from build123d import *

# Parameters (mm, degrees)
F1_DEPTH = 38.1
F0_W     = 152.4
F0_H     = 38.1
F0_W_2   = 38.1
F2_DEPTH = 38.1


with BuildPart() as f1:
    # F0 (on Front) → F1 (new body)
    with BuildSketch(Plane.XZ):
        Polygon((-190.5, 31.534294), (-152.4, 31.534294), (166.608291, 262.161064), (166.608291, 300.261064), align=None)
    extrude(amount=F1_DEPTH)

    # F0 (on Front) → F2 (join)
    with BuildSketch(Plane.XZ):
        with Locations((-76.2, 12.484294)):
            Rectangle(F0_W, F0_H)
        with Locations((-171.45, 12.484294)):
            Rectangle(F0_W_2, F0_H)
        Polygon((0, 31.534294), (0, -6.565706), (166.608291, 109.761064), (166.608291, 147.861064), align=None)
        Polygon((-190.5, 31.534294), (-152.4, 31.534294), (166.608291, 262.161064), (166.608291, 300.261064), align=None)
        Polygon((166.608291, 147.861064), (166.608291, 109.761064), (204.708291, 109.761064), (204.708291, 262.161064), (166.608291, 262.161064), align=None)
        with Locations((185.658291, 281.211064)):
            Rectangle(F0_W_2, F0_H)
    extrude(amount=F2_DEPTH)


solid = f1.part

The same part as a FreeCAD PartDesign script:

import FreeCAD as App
import Part
import Sketcher
Q = App.Units.Quantity

doc = App.newDocument("Part")
body = doc.addObject("PartDesign::Body", "Body")

# Sketch on XZ plane
sketch1 = body.newObject("Sketcher::SketchObject", "Sketch")
sketch1.AttachmentSupport = (doc.getObject("XZ_Plane"), [""])
sketch1.MapMode = "FlatFace"
sketch1.addGeometry(Part.LineSegment(App.Vector(-190, 32, 0), App.Vector(-152, 32, 0)), False)
sketch1.addGeometry(Part.LineSegment(App.Vector(-152, 32, 0), App.Vector(167, 262, 0)), False)
sketch1.addGeometry(Part.LineSegment(App.Vector(167, 262, 0), App.Vector(167, 300, 0)), False)
sketch1.addGeometry(Part.LineSegment(App.Vector(167, 300, 0), App.Vector(-190, 32, 0)), False)
sketch1.addConstraint(Sketcher.Constraint("Coincident", 0, 2, 1, 1))
sketch1.addConstraint(Sketcher.Constraint("Coincident", 1, 2, 2, 1))
sketch1.addConstraint(Sketcher.Constraint("Coincident", 2, 2, 3, 1))
sketch1.addConstraint(Sketcher.Constraint("Coincident", 3, 2, 0, 1))
sketch1.addConstraint(Sketcher.Constraint("Horizontal", 0))
sketch1.addConstraint(Sketcher.Constraint("Vertical", 2))
sketch1.addConstraint(Sketcher.Constraint("Equal", 0, 2))
sketch1.addConstraint(Sketcher.Constraint("DistanceX", 0, 1, 0, 2, Q("1.5 in")))
sketch1.addConstraint(Sketcher.Constraint("DistanceX", 0, 2, -1, 1, Q("6 in")))
sketch1.addConstraint(Sketcher.Constraint("Distance", 3, Q("446.923269 mm")))
sketch1.addConstraint(Sketcher.Constraint("DistanceX", -1, 1, 1, 2, Q("166.608291 mm")))
sketch1.addConstraint(Sketcher.Constraint("DistanceY", -1, 1, 0, 2, Q("31.534294 mm")))
pad1 = body.newObject("PartDesign::Pad", "Pad")
pad1.Profile = sketch1
pad1.Length = Q("1.5 in")

# Sketch on XZ plane
sketch2 = body.newObject("Sketcher::SketchObject", "Sketch001")
sketch2.AttachmentSupport = (doc.getObject("XZ_Plane"), [""])
sketch2.MapMode = "FlatFace"
sketch2.addGeometry(Part.LineSegment(App.Vector(205, 110, 0), App.Vector(205, 300, 0)), False)
sketch2.addGeometry(Part.LineSegment(App.Vector(205, 300, 0), App.Vector(167, 300, 0)), False)
sketch2.addGeometry(Part.LineSegment(App.Vector(167, 300, 0), App.Vector(-190, 32, 0)), False)
sketch2.addGeometry(Part.LineSegment(App.Vector(-190, 32, 0), App.Vector(-190, -7, 0)), False)
sketch2.addGeometry(Part.LineSegment(App.Vector(-190, -7, 0), App.Vector(0, -7, 0)), False)
sketch2.addGeometry(Part.LineSegment(App.Vector(0, -7, 0), App.Vector(167, 110, 0)), False)
sketch2.addGeometry(Part.LineSegment(App.Vector(167, 110, 0), App.Vector(205, 110, 0)), False)
sketch2.addGeometry(Part.LineSegment(App.Vector(-152, 32, 0), App.Vector(167, 262, 0)), False)
sketch2.addGeometry(Part.LineSegment(App.Vector(167, 262, 0), App.Vector(167, 148, 0)), False)
sketch2.addGeometry(Part.LineSegment(App.Vector(167, 148, 0), App.Vector(0, 32, 0)), False)
sketch2.addGeometry(Part.LineSegment(App.Vector(0, 32, 0), App.Vector(-152, 32, 0)), False)
sketch2.addConstraint(Sketcher.Constraint("Coincident", 0, 2, 1, 1))
sketch2.addConstraint(Sketcher.Constraint("Coincident", 1, 2, 2, 1))
sketch2.addConstraint(Sketcher.Constraint("Coincident", 2, 2, 3, 1))
sketch2.addConstraint(Sketcher.Constraint("Coincident", 3, 2, 4, 1))
sketch2.addConstraint(Sketcher.Constraint("Coincident", 4, 2, 5, 1))
sketch2.addConstraint(Sketcher.Constraint("Coincident", 5, 2, 6, 1))
sketch2.addConstraint(Sketcher.Constraint("Coincident", 6, 2, 0, 1))
sketch2.addConstraint(Sketcher.Constraint("Coincident", 7, 2, 8, 1))
sketch2.addConstraint(Sketcher.Constraint("Coincident", 8, 2, 9, 1))
sketch2.addConstraint(Sketcher.Constraint("Coincident", 9, 2, 10, 1))
sketch2.addConstraint(Sketcher.Constraint("Coincident", 10, 2, 7, 1))
sketch2.addConstraint(Sketcher.Constraint("Vertical", 0))
sketch2.addConstraint(Sketcher.Constraint("Horizontal", 1))
sketch2.addConstraint(Sketcher.Constraint("Vertical", 3))
sketch2.addConstraint(Sketcher.Constraint("Horizontal", 4))
sketch2.addConstraint(Sketcher.Constraint("Horizontal", 6))
sketch2.addConstraint(Sketcher.Constraint("Vertical", 8))
sketch2.addConstraint(Sketcher.Constraint("Horizontal", 10))
sketch2.addConstraint(Sketcher.Constraint("PointOnObject", 4, 2, -2))
sketch2.addConstraint(Sketcher.Constraint("PointOnObject", 9, 2, -2))
sketch2.addConstraint(Sketcher.Constraint("Parallel", 5, 9))
sketch2.addConstraint(Sketcher.Constraint("Horizontal", 2, 2, 9, 2))
sketch2.addConstraint(Sketcher.Constraint("Vertical", 1, 2, 5, 2))
sketch2.addConstraint(Sketcher.Constraint("Vertical", 5, 2, 7, 2))
sketch2.addConstraint(Sketcher.Constraint("Equal", 4, 0))
sketch2.addConstraint(Sketcher.Constraint("Equal", 6, 3))
sketch2.addConstraint(Sketcher.Constraint("DistanceX", 10, 2, 10, 1, Q("6 in")))
sketch2.addConstraint(Sketcher.Constraint("Distance", 5, Q("8 in")))
sketch2.addConstraint(Sketcher.Constraint("DistanceX", 1, 2, 1, 1, Q("1.5 in")))
sketch2.addConstraint(Sketcher.Constraint("DistanceX", 4, 1, 4, 2, Q("7.5 in")))
sketch2.addConstraint(Sketcher.Constraint("DistanceY", 8, 2, 8, 1, Q("4.5 in")))
sketch2.addConstraint(Sketcher.Constraint("Distance", 2, Q("446.923269 mm")))
sketch2.addConstraint(Sketcher.Constraint("DistanceY", -1, 1, 0, 2, Q("300.261064 mm")))
pad2 = body.newObject("PartDesign::Pad", "Pad001")
pad2.Profile = sketch2
pad2.Length = Q("1.5 in")

doc.recompute()
